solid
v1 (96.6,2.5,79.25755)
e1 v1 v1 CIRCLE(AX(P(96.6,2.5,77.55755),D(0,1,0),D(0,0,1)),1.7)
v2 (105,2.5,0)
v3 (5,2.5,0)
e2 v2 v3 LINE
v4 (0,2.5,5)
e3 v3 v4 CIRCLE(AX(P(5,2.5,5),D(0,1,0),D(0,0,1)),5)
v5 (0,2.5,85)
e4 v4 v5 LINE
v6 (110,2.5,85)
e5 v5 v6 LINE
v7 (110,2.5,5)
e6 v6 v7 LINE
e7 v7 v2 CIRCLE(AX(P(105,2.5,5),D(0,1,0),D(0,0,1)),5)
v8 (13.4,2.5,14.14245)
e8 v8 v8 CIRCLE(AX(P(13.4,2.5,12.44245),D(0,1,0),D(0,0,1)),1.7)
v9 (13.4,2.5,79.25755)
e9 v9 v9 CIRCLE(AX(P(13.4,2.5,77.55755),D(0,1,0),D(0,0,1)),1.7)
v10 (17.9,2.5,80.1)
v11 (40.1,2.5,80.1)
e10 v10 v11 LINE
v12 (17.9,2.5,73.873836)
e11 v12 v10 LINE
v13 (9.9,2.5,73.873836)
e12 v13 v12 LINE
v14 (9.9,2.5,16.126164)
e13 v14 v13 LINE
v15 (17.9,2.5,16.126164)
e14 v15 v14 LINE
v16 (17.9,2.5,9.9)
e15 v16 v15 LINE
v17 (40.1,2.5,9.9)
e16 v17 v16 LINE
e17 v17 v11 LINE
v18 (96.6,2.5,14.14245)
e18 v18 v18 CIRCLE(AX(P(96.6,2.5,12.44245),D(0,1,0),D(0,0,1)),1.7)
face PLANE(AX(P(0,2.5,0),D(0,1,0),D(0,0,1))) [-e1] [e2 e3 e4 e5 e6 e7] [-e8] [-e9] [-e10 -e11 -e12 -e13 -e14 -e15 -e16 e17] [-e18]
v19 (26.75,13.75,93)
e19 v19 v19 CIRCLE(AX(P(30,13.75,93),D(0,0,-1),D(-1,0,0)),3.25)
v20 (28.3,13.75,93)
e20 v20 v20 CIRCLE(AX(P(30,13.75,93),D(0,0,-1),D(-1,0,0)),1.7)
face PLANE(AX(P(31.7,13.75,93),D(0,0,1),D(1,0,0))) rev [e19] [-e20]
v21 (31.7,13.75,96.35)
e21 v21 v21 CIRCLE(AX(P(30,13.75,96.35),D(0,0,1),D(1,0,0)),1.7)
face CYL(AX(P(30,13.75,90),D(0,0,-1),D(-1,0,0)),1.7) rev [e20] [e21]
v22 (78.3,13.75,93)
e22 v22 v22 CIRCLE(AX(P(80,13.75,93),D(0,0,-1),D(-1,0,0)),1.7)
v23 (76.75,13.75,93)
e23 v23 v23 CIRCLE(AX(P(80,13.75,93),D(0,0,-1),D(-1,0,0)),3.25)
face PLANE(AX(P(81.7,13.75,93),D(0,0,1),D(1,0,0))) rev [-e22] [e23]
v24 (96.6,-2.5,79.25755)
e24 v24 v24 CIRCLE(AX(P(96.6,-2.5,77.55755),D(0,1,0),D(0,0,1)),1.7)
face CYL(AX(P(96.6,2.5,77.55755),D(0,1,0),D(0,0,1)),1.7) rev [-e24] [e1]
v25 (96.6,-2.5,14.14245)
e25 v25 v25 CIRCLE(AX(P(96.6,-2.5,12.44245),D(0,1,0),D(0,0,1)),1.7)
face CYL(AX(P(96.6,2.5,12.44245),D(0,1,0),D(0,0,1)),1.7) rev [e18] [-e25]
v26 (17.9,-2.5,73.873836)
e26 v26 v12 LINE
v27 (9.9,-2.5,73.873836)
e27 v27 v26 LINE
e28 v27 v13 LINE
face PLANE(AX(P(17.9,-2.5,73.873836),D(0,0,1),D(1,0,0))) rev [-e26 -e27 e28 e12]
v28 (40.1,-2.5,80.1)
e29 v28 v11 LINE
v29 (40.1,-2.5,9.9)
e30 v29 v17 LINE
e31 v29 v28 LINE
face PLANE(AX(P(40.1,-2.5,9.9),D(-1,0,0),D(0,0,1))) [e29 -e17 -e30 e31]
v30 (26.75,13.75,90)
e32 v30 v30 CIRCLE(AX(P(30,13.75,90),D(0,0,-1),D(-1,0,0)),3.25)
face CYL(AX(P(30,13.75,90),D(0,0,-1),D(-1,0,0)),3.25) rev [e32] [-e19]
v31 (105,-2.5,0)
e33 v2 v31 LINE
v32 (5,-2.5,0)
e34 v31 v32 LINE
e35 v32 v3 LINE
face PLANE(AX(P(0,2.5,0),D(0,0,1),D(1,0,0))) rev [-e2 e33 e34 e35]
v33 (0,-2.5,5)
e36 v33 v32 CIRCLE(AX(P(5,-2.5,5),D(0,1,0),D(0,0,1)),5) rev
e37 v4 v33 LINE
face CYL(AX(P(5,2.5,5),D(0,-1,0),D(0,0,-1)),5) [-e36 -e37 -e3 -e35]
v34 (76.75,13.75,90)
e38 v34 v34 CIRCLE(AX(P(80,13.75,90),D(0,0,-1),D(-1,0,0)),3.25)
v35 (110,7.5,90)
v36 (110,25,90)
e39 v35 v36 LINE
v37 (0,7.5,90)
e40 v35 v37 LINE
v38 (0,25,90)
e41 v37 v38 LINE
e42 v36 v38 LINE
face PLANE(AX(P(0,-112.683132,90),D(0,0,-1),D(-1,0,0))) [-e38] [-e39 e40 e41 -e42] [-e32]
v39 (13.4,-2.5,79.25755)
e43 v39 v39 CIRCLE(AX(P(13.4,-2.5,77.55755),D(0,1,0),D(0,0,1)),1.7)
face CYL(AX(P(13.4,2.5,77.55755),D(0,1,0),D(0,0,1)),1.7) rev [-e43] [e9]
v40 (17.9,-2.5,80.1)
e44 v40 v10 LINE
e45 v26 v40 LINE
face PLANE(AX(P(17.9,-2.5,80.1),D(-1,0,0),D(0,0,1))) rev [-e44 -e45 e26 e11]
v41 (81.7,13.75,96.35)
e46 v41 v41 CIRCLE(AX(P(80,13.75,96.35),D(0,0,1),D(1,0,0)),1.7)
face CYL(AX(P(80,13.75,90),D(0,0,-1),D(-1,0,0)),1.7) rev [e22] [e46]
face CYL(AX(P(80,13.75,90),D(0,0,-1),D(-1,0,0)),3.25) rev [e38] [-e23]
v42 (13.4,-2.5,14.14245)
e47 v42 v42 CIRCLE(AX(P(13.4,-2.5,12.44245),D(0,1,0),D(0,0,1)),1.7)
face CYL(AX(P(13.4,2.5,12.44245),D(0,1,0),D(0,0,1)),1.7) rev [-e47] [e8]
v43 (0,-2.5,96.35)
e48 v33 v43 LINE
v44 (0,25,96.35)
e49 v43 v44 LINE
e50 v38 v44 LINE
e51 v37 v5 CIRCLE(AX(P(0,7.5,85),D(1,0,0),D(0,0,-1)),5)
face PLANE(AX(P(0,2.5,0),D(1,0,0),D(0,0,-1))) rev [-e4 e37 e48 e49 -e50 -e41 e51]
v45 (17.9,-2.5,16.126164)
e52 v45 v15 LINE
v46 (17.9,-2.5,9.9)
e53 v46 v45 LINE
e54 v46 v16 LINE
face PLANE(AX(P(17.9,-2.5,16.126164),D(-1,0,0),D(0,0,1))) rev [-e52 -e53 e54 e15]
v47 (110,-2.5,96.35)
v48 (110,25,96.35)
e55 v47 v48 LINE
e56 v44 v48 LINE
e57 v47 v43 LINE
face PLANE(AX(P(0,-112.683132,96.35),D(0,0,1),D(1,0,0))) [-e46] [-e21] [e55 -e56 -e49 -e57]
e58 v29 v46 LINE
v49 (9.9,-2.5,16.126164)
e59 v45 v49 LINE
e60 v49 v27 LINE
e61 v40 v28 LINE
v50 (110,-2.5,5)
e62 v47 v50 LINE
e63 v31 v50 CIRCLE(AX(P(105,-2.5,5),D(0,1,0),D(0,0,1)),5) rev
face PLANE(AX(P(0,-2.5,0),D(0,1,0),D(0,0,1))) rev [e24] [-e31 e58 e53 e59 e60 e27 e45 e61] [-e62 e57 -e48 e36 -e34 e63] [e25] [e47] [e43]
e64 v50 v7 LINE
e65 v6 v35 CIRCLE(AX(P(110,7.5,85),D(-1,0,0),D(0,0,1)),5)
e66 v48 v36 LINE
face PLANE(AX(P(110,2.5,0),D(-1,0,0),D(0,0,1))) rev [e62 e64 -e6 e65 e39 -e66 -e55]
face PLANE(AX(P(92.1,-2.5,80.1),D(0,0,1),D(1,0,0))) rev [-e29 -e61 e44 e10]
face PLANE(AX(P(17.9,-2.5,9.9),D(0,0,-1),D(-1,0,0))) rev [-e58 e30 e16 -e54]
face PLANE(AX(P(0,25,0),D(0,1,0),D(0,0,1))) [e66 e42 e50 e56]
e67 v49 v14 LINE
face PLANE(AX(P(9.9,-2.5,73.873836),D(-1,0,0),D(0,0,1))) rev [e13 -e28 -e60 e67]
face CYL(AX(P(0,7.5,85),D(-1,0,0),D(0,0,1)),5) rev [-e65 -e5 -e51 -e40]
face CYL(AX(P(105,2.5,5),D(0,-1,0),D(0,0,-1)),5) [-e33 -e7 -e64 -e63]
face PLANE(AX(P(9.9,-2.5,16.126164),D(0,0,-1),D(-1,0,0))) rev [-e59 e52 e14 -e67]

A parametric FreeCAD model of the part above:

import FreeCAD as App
import Part
import Sketcher
Q = App.Units.Quantity


def edges_at(feature, points):
    """Names of the edges that pass closest to the given points."""
    edges = feature.Shape.Edges
    near = lambda p: min(range(len(edges)), key=lambda i: edges[i].distToShape(Part.Vertex(*p))[0])
    return sorted({f"Edge{near(p) + 1}" for p in points})

doc = App.newDocument("Part")
body = doc.addObject("PartDesign::Body", "Body")

sketch1 = body.newObject("Sketcher::SketchObject", "Sketch")
sketch1.AttachmentSupport = (doc.getObject("XZ_Plane"), [""])
sketch1.MapMode = "FlatFace"
sketch1.addGeometry([
    Part.LineSegment(App.Vector(0, 0, 0), App.Vector(0, 90, 0)),
    Part.LineSegment(App.Vector(0, 90, 0), App.Vector(110, 90, 0)),
    Part.LineSegment(App.Vector(110, 90, 0), App.Vector(110, 0, 0)),
    Part.LineSegment(App.Vector(110, 0, 0), App.Vector(0, 0, 0)),
], False)
sketch1.addConstraint([
    Sketcher.Constraint("Coincident", 0, 2, 1, 1),
    Sketcher.Constraint("Coincident", 1, 2, 2, 1),
    Sketcher.Constraint("Coincident", 2, 2, 3, 1),
    Sketcher.Constraint("Coincident", 3, 2, 0, 1),
    Sketcher.Constraint("Vertical", 0),
    Sketcher.Constraint("Horizontal", 1),
    Sketcher.Constraint("Vertical", 2),
    Sketcher.Constraint("Horizontal", 3),
    Sketcher.Constraint("Coincident", 3, 2, -1, 1),
    Sketcher.Constraint("DistanceX", 1, 1, 1, 2, Q("110 mm")),
    Sketcher.Constraint("DistanceY", 0, 1, 0, 2, Q("90 mm")),
])
pad1 = body.newObject("PartDesign::Pad", "Pad")
pad1.Profile = sketch1
pad1.Length = 5
pad1.Midplane = True

sketch2 = body.newObject("Sketcher::SketchObject", "Sketch001")
sketch2.AttachmentSupport = (doc.getObject("XZ_Plane"), [""])
sketch2.MapMode = "FlatFace"
sketch2.AttachmentOffset = App.Placement(App.Vector(0, 0, -2.5), App.Rotation())
sketch2.addGeometry([
    Part.Circle(App.Vector(13.4, 77.55755, 0), App.Vector(0, 0, 1), 1.7),
    Part.Circle(App.Vector(96.6, 12.44245, 0), App.Vector(0, 0, 1), 1.7),
    Part.Circle(App.Vector(96.6, 77.55755, 0), App.Vector(0, 0, 1), 1.7),
    Part.Circle(App.Vector(13.4, 12.44245, 0), App.Vector(0, 0, 1), 1.7),
], False)
sketch2.addConstraint([
    Sketcher.Constraint("Equal", 0, 1),
    Sketcher.Constraint("Equal", 1, 2),
    Sketcher.Constraint("Equal", 2, 3),
    Sketcher.Constraint("Horizontal", 0, 3, 2, 3),
    Sketcher.Constraint("Horizontal", 1, 3, 3, 3),
    Sketcher.Constraint("Vertical", 1, 3, 2, 3),
    Sketcher.Constraint("Vertical", 0, 3, 3, 3),
    Sketcher.Constraint("Diameter", 0, Q("3.4 mm")),
    Sketcher.Constraint("DistanceX", -1, 1, 0, 3, Q("13.4 mm")),
    Sketcher.Constraint("DistanceX", -1, 1, 1, 3, Q("96.6 mm")),
    Sketcher.Constraint("DistanceY", 1, 3, 0, 3, Q("65.1151 mm")),
    Sketcher.Constraint("DistanceY", -1, 1, 0, 3, Q("77.55755 mm")),
])
doc.recompute()
hole = body.newObject("PartDesign::Hole", "Hole")
hole.Profile = sketch2
hole.ThreadType = "None"
hole.Diameter = 3.4
hole.DepthType = "Dimension"
hole.Depth = 5
hole.DrillPoint = "Flat"
hole.Reversed = True

sketch3 = body.newObject("Sketcher::SketchObject", "Sketch002")
sketch3.AttachmentSupport = (doc.getObject("XZ_Plane"), [""])
sketch3.MapMode = "FlatFace"
sketch3.addGeometry([
    Part.LineSegment(App.Vector(0, 90, 0), App.Vector(0, 96.35, 0)),
    Part.LineSegment(App.Vector(0, 96.35, 0), App.Vector(110, 96.35, 0)),
    Part.LineSegment(App.Vector(110, 96.35, 0), App.Vector(110, 90, 0)),
    Part.LineSegment(App.Vector(110, 90, 0), App.Vector(0, 90, 0)),
], False)
sketch3.addConstraint([
    Sketcher.Constraint("Coincident", 0, 2, 1, 1),
    Sketcher.Constraint("Coincident", 1, 2, 2, 1),
    Sketcher.Constraint("Coincident", 2, 2, 3, 1),
    Sketcher.Constraint("Coincident", 3, 2, 0, 1),
    Sketcher.Constraint("Vertical", 0),
    Sketcher.Constraint("Horizontal", 1),
    Sketcher.Constraint("Vertical", 2),
    Sketcher.Constraint("Horizontal", 3),
    Sketcher.Constraint("PointOnObject", 0, 2, -2),
    Sketcher.Constraint("DistanceX", 1, 1, 1, 2, Q("110 mm")),
    Sketcher.Constraint("DistanceY", -1, 1, 2, 2, Q("90 mm")),
    Sketcher.Constraint("DistanceY", 0, 1, 0, 2, Q("6.35 mm")),
])
pad2 = body.newObject("PartDesign::Pad", "Pad001")
pad2.Profile = sketch3
pad2.Type = "TwoLengths"
pad2.Length = 25
pad2.Length2 = 2.5
pad2.Reversed = True

sketch4 = body.newObject("Sketcher::SketchObject", "Sketch003")
sketch4.AttachmentSupport = (doc.getObject("XY_Plane"), [""])
sketch4.MapMode = "FlatFace"
sketch4.AttachmentOffset = App.Placement(App.Vector(0, 0, 90), App.Rotation())
sketch4.addGeometry([
    Part.Circle(App.Vector(80, 13.75, 0), App.Vector(0, 0, 1), 1.7),
    Part.Circle(App.Vector(30, 13.75, 0), App.Vector(0, 0, 1), 1.7),
], False)
sketch4.addConstraint([
    Sketcher.Constraint("Equal", 0, 1),
    Sketcher.Constraint("Horizontal", 0, 3, 1, 3),
    Sketcher.Constraint("Diameter", 0, Q("3.4 mm")),
    Sketcher.Constraint("DistanceX", -1, 1, 0, 3, Q("80 mm")),
    Sketcher.Constraint("DistanceX", -1, 1, 1, 3, Q("30 mm")),
    Sketcher.Constraint("DistanceY", -1, 1, 0, 3, Q("13.75 mm")),
])
doc.recompute()
hole2 = body.newObject("PartDesign::Hole", "Hole001")
hole2.Profile = sketch4
hole2.ThreadType = "None"
hole2.Diameter = 3.4
hole2.DepthType = "Dimension"
hole2.Depth = 6.35
hole2.DrillPoint = "Flat"
hole2.HoleCutType = "Counterbore"
hole2.HoleCutDiameter = 6.5
hole2.HoleCutDepth = 3
hole2.Reversed = True

sketch5 = body.newObject("Sketcher::SketchObject", "Sketch004")
sketch5.AttachmentSupport = (doc.getObject("XZ_Plane"), [""])
sketch5.MapMode = "FlatFace"
sketch5.AttachmentOffset = App.Placement(App.Vector(0, 0, -2.5), App.Rotation())
sketch5.addGeometry([
    Part.LineSegment(App.Vector(92.1, 9.9, 0), App.Vector(17.9, 9.9, 0)),
    Part.LineSegment(App.Vector(17.9, 9.9, 0), App.Vector(17.9, 16.126164, 0)),
    Part.LineSegment(App.Vector(17.9, 16.126164, 0), App.Vector(9.9, 16.126164, 0)),
    Part.LineSegment(App.Vector(9.9, 16.126164, 0), App.Vector(9.9, 73.873836, 0)),
    Part.LineSegment(App.Vector(9.9, 73.873836, 0), App.Vector(17.9, 73.873836, 0)),
    Part.LineSegment(App.Vector(17.9, 73.873836, 0), App.Vector(17.9, 80.1, 0)),
    Part.LineSegment(App.Vector(17.9, 80.1, 0), App.Vector(92.1, 80.1, 0)),
    Part.LineSegment(App.Vector(92.1, 80.1, 0), App.Vector(92.1, 73.873836, 0)),
    Part.LineSegment(App.Vector(92.1, 73.873836, 0), App.Vector(100.1, 73.873836, 0)),
    Part.LineSegment(App.Vector(100.1, 73.873836, 0), App.Vector(100.1, 16.126164, 0)),
    Part.LineSegment(App.Vector(100.1, 16.126164, 0), App.Vector(92.1, 16.126164, 0)),
    Part.LineSegment(App.Vector(92.1, 16.126164, 0), App.Vector(92.1, 9.9, 0)),
], False)
sketch5.addConstraint([
    Sketcher.Constraint("Coincident", 0, 2, 1, 1),
    Sketcher.Constraint("Coincident", 1, 2, 2, 1),
    Sketcher.Constraint("Coincident", 2, 2, 3, 1),
    Sketcher.Constraint("Coincident", 3, 2, 4, 1),
    Sketcher.Constraint("Coincident", 4, 2, 5, 1),
    Sketcher.Constraint("Coincident", 5, 2, 6, 1),
    Sketcher.Constraint("Coincident", 6, 2, 7, 1),
    Sketcher.Constraint("Coincident", 7, 2, 8, 1),
    Sketcher.Constraint("Coincident", 8, 2, 9, 1),
    Sketcher.Constraint("Coincident", 9, 2, 10, 1),
    Sketcher.Constraint("Coincident", 10, 2, 11, 1),
    Sketcher.Constraint("Coincident", 11, 2, 0, 1),
    Sketcher.Constraint("Horizontal", 0),
    Sketcher.Constraint("Vertical", 1),
    Sketcher.Constraint("Horizontal", 2),
    Sketcher.Constraint("Vertical", 3),
    Sketcher.Constraint("Horizontal", 4),
    Sketcher.Constraint("Vertical", 5),
    Sketcher.Constraint("Horizontal", 6),
    Sketcher.Constraint("Vertical", 7),
    Sketcher.Constraint("Horizontal", 8),
    Sketcher.Constraint("Vertical", 9),
    Sketcher.Constraint("Horizontal", 10),
    Sketcher.Constraint("Vertical", 11),
    Sketcher.Constraint("Horizontal", 4, 2, 7, 2),
    Sketcher.Constraint("Horizontal", 2, 2, 9, 2),
    Sketcher.Constraint("Vertical", 1, 2, 4, 2),
    Sketcher.Constraint("Vertical", 7, 2, 10, 2),
    Sketcher.Constraint("Equal", 4, 8),
    Sketcher.Constraint("Equal", 1, 5),
    Sketcher.Constraint("DistanceX", 2, 2, 2, 1, Q("8 mm")),
    Sketcher.Constraint("DistanceX", 0, 2, 0, 1, Q("74.2 mm")),
    Sketcher.Constraint("DistanceX", -1, 1, 0, 2, Q("17.9 mm")),
    Sketcher.Constraint("DistanceY", -1, 1, 0, 2, Q("9.9 mm")),
    Sketcher.Constraint("DistanceY", -1, 1, 5, 2, Q("80.1 mm")),
    Sketcher.Constraint("DistanceY", 3, 1, 3, 2, Q("57.747672 mm")),
])
pocket1 = body.newObject("PartDesign::Pocket", "Pocket")
pocket1.Profile = sketch5
pocket1.Type = "ThroughAll"
pocket1.Reversed = True

sketch6 = body.newObject("Sketcher::SketchObject", "Sketch005")
sketch6.AttachmentSupport = (doc.getObject("XZ_Plane"), [""])
sketch6.MapMode = "FlatFace"
sketch6.AttachmentOffset = App.Placement(App.Vector(0, 0, -2.5), App.Rotation())
sketch6.addGeometry([
    Part.LineSegment(App.Vector(92.1, 9.9, 0), App.Vector(40.1, 9.9, 0)),
    Part.LineSegment(App.Vector(40.1, 9.9, 0), App.Vector(40.1, 80.1, 0)),
    Part.LineSegment(App.Vector(40.1, 80.1, 0), App.Vector(92.1, 80.1, 0)),
    Part.LineSegment(App.Vector(92.1, 80.1, 0), App.Vector(92.1, 73.873836, 0)),
    Part.LineSegment(App.Vector(92.1, 73.873836, 0), App.Vector(100.1, 73.873836, 0)),
    Part.LineSegment(App.Vector(100.1, 73.873836, 0), App.Vector(100.1, 16.126164, 0)),
    Part.LineSegment(App.Vector(100.1, 16.126164, 0), App.Vector(92.1, 16.126164, 0)),
    Part.LineSegment(App.Vector(92.1, 16.126164, 0), App.Vector(92.1, 9.9, 0)),
], False)
sketch6.addConstraint([
    Sketcher.Constraint("Coincident", 0, 2, 1, 1),
    Sketcher.Constraint("Coincident", 1, 2, 2, 1),
    Sketcher.Constraint("Coincident", 2, 2, 3, 1),
    Sketcher.Constraint("Coincident", 3, 2, 4, 1),
    Sketcher.Constraint("Coincident", 4, 2, 5, 1),
    Sketcher.Constraint("Coincident", 5, 2, 6, 1),
    Sketcher.Constraint("Coincident", 6, 2, 7, 1),
    Sketcher.Constraint("Coincident", 7, 2, 0, 1),
    Sketcher.Constraint("Horizontal", 0),
    Sketcher.Constraint("Vertical", 1),
    Sketcher.Constraint("Horizontal", 2),
    Sketcher.Constraint("Vertical", 3),
    Sketcher.Constraint("Horizontal", 4),
    Sketcher.Constraint("Vertical", 5),
    Sketcher.Constraint("Horizontal", 6),
    Sketcher.Constraint("Vertical", 7),
    Sketcher.Constraint("Vertical", 3, 2, 6, 2),
    Sketcher.Constraint("Equal", 3, 7),
    Sketcher.Constraint("DistanceX", 0, 2, 0, 1, Q("52 mm")),
    Sketcher.Constraint("DistanceX", 4, 1, 4, 2, Q("8 mm")),
    Sketcher.Constraint("DistanceY", 1, 1, 1, 2, Q("70.2 mm")),
    Sketcher.Constraint("DistanceX", -1, 1, 0, 2, Q("40.1 mm")),
    Sketcher.Constraint("DistanceY", -1, 1, 0, 2, Q("9.9 mm")),
    Sketcher.Constraint("DistanceY", 5, 2, 5, 1, Q("57.747672 mm")),
])
pad3 = body.newObject("PartDesign::Pad", "Pad002")
pad3.Profile = sketch6
pad3.Length = 5
doc.recompute()

fillet = body.newObject("PartDesign::Fillet", "Fillet")
fillet.Base = (pad3, edges_at(pad3, [(0, 0, 0), (110, 0, 0)]))
fillet.Radius = 5
doc.recompute()

fillet2 = body.newObject("PartDesign::Fillet", "Fillet001")
fillet2.Base = (fillet, edges_at(fillet, [(55, 2.5, 90)]))
fillet2.Radius = 5

doc.recompute()
